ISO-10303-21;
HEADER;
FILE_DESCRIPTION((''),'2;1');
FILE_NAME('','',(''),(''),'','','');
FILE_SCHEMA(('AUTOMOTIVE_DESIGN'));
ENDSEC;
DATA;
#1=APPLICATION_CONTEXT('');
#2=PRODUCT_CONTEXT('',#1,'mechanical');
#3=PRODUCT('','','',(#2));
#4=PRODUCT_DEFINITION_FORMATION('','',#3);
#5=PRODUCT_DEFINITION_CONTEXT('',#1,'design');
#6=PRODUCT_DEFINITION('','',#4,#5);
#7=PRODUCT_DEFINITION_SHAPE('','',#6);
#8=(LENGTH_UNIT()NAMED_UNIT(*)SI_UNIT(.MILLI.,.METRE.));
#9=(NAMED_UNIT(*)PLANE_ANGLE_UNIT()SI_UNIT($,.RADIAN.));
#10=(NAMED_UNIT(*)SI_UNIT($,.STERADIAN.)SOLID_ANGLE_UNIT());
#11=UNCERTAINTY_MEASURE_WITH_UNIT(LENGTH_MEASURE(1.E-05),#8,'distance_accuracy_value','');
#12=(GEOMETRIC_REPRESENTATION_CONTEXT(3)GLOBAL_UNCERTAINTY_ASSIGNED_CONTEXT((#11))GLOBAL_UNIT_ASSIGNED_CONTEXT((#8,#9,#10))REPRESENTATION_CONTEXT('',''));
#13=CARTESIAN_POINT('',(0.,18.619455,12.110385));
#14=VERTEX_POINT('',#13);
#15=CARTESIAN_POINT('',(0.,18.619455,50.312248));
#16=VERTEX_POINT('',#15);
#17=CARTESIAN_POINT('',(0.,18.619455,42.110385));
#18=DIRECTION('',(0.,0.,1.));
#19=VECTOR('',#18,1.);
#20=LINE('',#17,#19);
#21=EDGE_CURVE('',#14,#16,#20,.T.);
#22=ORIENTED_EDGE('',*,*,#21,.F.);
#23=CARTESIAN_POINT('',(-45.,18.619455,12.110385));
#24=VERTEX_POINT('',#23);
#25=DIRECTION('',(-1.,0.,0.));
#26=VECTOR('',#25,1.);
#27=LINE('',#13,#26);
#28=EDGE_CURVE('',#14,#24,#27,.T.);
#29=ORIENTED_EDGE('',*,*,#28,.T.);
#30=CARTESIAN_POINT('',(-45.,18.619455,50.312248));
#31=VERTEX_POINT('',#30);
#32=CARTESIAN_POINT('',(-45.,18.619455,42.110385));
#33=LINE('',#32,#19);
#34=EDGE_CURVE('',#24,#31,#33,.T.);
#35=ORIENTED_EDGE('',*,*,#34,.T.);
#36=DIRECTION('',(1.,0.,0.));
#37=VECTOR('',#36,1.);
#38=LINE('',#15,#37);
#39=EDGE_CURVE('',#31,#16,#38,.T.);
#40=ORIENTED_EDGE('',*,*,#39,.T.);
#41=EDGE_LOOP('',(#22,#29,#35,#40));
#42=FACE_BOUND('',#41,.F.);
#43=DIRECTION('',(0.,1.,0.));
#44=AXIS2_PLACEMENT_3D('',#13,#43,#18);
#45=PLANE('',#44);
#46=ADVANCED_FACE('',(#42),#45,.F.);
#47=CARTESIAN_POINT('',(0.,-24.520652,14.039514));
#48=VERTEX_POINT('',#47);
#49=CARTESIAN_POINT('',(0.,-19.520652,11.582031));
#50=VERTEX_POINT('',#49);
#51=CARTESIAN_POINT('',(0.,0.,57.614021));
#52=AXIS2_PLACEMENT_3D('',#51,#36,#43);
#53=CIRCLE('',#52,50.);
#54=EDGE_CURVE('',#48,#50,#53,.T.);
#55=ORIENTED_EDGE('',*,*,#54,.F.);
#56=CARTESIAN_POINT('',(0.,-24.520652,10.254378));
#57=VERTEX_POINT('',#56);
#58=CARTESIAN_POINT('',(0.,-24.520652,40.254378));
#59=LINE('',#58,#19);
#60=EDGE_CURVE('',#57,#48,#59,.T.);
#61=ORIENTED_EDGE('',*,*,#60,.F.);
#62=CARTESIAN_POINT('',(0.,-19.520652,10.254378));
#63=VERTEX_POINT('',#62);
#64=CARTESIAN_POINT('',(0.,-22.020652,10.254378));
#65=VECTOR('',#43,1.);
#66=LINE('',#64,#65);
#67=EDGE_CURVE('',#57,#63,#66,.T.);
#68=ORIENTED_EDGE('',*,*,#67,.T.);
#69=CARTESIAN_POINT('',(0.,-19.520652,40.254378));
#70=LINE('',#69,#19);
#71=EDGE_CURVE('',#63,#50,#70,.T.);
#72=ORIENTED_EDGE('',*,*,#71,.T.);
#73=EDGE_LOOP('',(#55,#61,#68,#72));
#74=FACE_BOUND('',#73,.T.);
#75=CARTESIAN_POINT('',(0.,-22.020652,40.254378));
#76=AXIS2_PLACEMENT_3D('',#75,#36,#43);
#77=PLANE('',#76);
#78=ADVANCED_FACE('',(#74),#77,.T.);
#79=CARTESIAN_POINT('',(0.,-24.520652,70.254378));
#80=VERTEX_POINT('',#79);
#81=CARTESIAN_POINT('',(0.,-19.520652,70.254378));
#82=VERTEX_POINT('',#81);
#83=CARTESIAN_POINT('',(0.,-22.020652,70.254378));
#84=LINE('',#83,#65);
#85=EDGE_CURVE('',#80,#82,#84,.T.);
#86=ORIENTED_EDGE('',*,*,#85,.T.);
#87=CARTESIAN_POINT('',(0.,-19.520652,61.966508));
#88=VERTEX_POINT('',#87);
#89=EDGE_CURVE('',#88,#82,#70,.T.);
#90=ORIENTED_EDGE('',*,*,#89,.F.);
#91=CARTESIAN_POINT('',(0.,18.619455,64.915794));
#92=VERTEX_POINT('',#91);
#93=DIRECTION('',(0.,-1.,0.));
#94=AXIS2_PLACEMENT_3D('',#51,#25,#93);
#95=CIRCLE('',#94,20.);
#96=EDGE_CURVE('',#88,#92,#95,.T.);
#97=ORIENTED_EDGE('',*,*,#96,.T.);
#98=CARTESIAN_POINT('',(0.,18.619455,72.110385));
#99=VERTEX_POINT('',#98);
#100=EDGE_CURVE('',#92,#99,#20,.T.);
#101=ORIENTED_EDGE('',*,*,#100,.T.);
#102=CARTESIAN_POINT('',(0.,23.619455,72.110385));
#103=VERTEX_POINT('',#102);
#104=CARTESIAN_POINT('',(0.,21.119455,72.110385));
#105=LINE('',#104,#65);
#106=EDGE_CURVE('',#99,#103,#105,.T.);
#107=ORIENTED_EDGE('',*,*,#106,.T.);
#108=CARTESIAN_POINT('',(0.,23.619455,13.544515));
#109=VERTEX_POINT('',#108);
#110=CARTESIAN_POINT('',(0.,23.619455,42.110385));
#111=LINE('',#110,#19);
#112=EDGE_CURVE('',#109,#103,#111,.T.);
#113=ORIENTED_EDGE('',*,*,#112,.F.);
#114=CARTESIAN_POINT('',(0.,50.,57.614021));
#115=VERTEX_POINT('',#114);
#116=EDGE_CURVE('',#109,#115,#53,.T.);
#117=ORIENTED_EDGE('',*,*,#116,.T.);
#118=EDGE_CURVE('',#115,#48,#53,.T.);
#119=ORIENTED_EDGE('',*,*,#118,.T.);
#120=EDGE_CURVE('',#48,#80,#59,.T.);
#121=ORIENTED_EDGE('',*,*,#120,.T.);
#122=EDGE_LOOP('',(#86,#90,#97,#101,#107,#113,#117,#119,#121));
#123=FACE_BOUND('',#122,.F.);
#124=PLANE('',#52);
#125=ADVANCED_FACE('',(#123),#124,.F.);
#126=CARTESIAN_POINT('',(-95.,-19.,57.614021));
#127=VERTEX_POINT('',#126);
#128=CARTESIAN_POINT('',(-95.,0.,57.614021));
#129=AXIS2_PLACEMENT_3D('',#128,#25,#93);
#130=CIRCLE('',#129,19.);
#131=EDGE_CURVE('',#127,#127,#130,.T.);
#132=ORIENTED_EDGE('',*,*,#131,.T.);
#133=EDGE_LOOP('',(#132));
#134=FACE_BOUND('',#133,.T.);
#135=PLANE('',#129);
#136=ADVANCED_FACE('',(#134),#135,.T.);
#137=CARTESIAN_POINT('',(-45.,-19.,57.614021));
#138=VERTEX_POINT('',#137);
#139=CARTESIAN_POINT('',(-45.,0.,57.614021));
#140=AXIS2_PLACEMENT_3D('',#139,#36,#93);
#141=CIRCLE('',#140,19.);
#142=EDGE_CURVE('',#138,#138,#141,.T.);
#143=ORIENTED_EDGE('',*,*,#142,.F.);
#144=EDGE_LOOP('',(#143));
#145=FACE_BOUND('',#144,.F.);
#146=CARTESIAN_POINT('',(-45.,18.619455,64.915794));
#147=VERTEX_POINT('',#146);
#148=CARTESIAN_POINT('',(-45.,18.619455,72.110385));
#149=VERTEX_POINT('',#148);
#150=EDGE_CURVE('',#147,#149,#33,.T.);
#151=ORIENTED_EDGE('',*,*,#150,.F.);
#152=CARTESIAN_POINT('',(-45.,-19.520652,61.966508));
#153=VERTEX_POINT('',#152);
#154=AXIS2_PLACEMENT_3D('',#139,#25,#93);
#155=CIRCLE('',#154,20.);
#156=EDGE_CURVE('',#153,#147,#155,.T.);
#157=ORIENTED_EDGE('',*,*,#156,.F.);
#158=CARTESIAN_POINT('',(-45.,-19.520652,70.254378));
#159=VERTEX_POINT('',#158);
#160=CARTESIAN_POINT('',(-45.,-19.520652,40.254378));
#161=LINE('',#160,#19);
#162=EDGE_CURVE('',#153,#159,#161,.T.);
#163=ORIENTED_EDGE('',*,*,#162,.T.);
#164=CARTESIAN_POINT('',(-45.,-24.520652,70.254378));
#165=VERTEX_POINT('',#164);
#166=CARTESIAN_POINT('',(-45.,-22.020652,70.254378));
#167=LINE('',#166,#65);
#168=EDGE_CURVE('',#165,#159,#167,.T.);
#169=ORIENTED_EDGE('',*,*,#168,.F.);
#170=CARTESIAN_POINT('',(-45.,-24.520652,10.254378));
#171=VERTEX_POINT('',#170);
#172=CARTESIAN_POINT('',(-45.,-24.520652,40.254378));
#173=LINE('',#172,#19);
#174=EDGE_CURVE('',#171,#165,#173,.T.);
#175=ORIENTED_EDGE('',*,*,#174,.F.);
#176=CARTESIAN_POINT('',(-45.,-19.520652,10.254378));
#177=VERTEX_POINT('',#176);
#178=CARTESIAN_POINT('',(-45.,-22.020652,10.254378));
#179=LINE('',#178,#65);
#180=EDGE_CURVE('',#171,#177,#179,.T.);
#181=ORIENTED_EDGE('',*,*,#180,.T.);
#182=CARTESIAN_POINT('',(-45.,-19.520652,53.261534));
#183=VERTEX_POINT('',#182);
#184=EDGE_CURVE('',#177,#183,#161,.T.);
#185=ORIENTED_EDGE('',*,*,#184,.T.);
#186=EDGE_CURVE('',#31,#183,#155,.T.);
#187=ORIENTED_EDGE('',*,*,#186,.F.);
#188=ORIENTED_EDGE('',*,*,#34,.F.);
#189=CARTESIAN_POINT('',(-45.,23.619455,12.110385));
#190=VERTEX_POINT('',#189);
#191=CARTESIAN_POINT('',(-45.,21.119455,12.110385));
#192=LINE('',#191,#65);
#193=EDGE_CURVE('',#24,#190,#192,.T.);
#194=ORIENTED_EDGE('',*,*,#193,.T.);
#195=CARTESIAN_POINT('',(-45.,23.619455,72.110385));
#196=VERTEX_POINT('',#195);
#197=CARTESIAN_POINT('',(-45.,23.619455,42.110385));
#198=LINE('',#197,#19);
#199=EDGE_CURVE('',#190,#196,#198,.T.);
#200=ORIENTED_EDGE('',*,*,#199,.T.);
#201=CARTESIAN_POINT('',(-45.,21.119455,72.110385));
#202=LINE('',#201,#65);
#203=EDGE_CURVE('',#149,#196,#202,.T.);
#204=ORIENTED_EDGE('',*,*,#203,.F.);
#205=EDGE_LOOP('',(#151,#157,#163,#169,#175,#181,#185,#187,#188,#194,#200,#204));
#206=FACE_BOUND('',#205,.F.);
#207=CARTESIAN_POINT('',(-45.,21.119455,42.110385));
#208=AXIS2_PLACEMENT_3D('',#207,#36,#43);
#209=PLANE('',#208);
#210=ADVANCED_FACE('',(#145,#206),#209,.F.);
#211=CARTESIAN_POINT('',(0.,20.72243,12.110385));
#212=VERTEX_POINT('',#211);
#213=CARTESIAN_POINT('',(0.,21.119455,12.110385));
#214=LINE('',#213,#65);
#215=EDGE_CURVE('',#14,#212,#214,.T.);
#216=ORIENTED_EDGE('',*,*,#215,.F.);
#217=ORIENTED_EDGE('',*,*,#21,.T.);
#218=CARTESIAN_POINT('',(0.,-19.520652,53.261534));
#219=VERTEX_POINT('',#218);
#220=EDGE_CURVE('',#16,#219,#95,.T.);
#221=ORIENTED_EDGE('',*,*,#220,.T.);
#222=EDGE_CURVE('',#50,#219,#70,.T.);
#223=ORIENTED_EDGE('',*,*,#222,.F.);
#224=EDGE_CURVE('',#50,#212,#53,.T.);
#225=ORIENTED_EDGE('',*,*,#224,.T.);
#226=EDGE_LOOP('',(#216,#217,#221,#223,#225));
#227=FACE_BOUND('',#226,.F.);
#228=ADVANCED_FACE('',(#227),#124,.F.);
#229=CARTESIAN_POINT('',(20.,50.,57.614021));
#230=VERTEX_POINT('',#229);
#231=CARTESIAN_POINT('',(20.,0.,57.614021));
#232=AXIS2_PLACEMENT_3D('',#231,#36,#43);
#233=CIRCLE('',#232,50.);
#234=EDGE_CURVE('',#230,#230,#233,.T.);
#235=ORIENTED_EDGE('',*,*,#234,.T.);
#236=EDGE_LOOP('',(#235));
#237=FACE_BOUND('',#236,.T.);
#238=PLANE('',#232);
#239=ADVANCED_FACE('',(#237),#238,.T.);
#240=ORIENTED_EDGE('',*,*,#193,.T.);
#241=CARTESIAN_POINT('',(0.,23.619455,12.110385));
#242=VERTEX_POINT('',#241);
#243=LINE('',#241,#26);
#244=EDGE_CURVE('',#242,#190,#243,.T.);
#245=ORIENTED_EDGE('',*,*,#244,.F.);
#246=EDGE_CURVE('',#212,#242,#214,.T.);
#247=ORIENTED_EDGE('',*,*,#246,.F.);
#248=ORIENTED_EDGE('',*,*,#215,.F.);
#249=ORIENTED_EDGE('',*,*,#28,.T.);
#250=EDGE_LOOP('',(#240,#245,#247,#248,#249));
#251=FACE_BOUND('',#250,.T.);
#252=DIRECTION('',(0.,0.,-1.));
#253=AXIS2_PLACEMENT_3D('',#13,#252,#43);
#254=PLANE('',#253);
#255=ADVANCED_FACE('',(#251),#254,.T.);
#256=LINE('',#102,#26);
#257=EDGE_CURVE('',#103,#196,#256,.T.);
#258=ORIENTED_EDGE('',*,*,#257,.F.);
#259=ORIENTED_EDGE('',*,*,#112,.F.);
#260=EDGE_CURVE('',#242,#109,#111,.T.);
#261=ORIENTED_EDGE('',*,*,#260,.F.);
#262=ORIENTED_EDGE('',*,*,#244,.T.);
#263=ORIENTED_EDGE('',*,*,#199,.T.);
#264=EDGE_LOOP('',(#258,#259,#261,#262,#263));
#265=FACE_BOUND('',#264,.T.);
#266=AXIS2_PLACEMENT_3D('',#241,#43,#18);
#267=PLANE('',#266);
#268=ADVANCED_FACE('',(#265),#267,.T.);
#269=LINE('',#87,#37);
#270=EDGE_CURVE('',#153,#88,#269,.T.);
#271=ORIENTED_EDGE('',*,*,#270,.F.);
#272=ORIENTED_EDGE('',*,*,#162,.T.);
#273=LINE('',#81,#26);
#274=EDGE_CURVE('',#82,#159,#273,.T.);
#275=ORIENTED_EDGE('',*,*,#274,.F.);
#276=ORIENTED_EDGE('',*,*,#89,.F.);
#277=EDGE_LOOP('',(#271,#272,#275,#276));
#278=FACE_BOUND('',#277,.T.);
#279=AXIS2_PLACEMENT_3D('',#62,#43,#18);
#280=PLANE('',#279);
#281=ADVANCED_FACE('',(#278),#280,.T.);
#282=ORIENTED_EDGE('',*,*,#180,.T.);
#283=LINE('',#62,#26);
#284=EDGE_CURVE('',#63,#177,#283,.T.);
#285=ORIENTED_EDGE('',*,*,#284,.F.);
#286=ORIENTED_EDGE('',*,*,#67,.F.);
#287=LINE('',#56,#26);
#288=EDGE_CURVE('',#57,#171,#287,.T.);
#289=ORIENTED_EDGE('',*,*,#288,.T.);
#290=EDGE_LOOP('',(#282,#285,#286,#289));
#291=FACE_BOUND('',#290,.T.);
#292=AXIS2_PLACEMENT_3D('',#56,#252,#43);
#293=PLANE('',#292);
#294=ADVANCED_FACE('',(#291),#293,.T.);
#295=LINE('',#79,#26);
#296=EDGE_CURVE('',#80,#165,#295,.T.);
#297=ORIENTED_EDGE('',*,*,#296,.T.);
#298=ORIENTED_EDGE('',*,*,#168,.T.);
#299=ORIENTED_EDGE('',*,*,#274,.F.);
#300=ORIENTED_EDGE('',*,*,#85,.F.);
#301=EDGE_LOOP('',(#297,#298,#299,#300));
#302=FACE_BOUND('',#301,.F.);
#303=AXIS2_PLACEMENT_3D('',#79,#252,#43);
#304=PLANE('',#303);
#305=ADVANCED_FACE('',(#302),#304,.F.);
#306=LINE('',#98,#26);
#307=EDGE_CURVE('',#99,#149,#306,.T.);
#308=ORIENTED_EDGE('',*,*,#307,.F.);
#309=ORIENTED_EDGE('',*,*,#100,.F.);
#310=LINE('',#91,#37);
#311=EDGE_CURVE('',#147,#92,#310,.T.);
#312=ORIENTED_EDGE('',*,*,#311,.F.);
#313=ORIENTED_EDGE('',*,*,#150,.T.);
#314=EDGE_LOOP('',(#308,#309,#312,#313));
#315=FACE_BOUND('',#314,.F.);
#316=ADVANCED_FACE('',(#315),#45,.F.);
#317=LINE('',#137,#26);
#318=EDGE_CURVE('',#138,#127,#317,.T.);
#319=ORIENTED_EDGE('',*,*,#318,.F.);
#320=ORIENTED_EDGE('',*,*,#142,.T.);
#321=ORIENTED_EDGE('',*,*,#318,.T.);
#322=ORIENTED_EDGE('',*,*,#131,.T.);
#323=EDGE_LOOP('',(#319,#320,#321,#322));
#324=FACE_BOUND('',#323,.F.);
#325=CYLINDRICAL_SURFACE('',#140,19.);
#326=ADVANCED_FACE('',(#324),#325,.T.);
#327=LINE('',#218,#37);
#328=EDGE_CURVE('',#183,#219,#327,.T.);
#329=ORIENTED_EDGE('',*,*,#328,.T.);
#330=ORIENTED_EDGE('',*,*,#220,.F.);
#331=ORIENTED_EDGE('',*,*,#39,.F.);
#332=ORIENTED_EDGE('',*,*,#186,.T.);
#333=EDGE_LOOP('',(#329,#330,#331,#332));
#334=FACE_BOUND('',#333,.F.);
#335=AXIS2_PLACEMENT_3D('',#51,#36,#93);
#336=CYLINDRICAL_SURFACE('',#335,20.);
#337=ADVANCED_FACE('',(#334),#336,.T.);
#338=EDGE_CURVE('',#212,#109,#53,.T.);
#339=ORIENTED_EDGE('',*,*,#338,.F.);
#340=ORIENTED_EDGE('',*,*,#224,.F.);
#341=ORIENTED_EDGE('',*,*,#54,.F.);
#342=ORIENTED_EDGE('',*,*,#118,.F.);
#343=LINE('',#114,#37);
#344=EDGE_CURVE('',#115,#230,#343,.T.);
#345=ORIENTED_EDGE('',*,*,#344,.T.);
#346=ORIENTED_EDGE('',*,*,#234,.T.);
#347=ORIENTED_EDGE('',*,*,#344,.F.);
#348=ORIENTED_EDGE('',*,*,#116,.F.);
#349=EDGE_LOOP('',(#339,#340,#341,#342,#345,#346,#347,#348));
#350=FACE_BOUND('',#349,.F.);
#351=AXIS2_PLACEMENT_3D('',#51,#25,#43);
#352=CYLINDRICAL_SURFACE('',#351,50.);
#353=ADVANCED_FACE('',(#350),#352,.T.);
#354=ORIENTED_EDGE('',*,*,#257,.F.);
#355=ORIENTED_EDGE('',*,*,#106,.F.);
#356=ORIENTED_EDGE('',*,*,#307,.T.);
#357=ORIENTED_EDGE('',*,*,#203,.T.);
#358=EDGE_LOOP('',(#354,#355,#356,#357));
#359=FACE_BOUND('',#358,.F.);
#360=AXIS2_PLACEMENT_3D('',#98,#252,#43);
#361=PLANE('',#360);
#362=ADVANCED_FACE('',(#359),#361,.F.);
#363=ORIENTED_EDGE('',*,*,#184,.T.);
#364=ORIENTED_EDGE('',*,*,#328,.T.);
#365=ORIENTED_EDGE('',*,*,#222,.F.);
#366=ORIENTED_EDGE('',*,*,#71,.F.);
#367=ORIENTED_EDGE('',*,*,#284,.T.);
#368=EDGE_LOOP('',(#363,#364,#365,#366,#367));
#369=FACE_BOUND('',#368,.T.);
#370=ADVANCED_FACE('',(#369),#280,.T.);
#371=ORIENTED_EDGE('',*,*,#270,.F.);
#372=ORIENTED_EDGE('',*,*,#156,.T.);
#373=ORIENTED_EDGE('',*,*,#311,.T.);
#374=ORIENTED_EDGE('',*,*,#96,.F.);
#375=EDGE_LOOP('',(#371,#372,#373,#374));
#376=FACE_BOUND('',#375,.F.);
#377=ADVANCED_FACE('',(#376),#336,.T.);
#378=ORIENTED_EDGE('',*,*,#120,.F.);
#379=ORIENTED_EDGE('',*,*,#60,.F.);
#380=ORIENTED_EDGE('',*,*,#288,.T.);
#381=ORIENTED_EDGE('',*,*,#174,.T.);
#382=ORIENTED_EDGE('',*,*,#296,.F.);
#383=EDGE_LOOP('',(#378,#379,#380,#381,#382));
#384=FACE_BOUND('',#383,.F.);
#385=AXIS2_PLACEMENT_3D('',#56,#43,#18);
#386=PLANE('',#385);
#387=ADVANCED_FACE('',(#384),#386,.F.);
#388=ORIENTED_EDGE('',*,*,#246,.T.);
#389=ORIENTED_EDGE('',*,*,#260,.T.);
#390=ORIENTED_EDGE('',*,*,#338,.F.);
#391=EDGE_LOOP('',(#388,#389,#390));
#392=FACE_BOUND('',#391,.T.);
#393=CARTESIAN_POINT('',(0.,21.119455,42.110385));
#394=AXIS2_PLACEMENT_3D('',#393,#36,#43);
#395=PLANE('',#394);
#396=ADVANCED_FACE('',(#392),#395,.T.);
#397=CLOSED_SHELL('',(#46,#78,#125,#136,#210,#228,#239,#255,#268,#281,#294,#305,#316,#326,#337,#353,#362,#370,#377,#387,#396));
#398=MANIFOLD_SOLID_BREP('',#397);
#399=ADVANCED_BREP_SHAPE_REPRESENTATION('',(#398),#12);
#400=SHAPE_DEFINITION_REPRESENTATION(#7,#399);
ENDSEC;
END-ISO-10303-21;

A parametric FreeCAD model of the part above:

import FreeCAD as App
import Part
import Sketcher
from FreeCAD import Vector

doc = App.newDocument("Part")
body = doc.addObject("PartDesign::Body", "Body")

# Sketch on YZ plane
sketch1 = doc.addObject("Sketcher::SketchObject", "Sketch")
body.addObject(sketch1)
sketch1.AttachmentSupport = (doc.YZ_Plane, [""])
sketch1.MapMode = "FlatFace"
sketch1.addGeometry(Part.Circle(Vector(0, 57.614021, 0), Vector(0, 0, 1), 50), False)
sketch1.addConstraint(Sketcher.Constraint("PointOnObject", 0, 3, -2))
sketch1.addConstraint(Sketcher.Constraint("Diameter", 0, 100.0))
sketch1.addConstraint(Sketcher.Constraint("DistanceY", -1, 1, 0, 3, 57.614021))
pad1 = doc.addObject("PartDesign::Pad", "Pad")
body.addObject(pad1)
pad1.Profile = sketch1
pad1.Length = 20

# Sketch on YZ plane
sketch2 = doc.addObject("Sketcher::SketchObject", "Sketch001")
body.addObject(sketch2)
sketch2.AttachmentSupport = (doc.YZ_Plane, [""])
sketch2.MapMode = "FlatFace"
sketch2.addGeometry(Part.Circle(Vector(0, 57.614021, 0), Vector(0, 0, 1), 20), False)
sketch2.addConstraint(Sketcher.Constraint("PointOnObject", 0, 3, -2))
sketch2.addConstraint(Sketcher.Constraint("Diameter", 0, 40.0))
sketch2.addConstraint(Sketcher.Constraint("DistanceY", -1, 1, 0, 3, 57.614021))
pad2 = doc.addObject("PartDesign::Pad", "Pad001")
body.addObject(pad2)
pad2.Profile = sketch2
pad2.Length = 45
pad2.Reversed = True

# Sketch on YZ plane
sketch3 = doc.addObject("Sketcher::SketchObject", "Sketch002")
body.addObject(sketch3)
sketch3.AttachmentSupport = (doc.YZ_Plane, [""])
sketch3.MapMode = "FlatFace"
sketch3.addGeometry(Part.LineSegment(Vector(-24.520652, 70.254378, 0), Vector(-24.520652, 10.254378, 0)), False)
sketch3.addGeometry(Part.LineSegment(Vector(-24.520652, 10.254378, 0), Vector(-19.520652, 10.254378, 0)), False)
sketch3.addGeometry(Part.LineSegment(Vector(-19.520652, 10.254378, 0), Vector(-19.520652, 70.254378, 0)), False)
sketch3.addGeometry(Part.LineSegment(Vector(-19.520652, 70.254378, 0), Vector(-24.520652, 70.254378, 0)), False)
sketch3.addConstraint(Sketcher.Constraint("Coincident", 0, 2, 1, 1))
sketch3.addConstraint(Sketcher.Constraint("Coincident", 1, 2, 2, 1))
sketch3.addConstraint(Sketcher.Constraint("Coincident", 2, 2, 3, 1))
sketch3.addConstraint(Sketcher.Constraint("Coincident", 3, 2, 0, 1))
sketch3.addConstraint(Sketcher.Constraint("Vertical", 0))
sketch3.addConstraint(Sketcher.Constraint("Horizontal", 1))
sketch3.addConstraint(Sketcher.Constraint("Vertical", 2))
sketch3.addConstraint(Sketcher.Constraint("Horizontal", 3))
sketch3.addConstraint(Sketcher.Constraint("DistanceX", 1, 1, 1, 2, 5.0))
sketch3.addConstraint(Sketcher.Constraint("DistanceY", 0, 2, 0, 1, 60.0))
sketch3.addConstraint(Sketcher.Constraint("DistanceX", 0, 2, -1, 1, 24.520652))
sketch3.addConstraint(Sketcher.Constraint("DistanceY", -1, 1, 0, 2, 10.254378))
pad3 = doc.addObject("PartDesign::Pad", "Pad002")
body.addObject(pad3)
pad3.Profile = sketch3
pad3.Length = 45
pad3.Reversed = True

# Sketch on YZ plane
sketch4 = doc.addObject("Sketcher::SketchObject", "Sketch003")
body.addObject(sketch4)
sketch4.AttachmentSupport = (doc.YZ_Plane, [""])
sketch4.MapMode = "FlatFace"
sketch4.AttachmentOffset = App.Placement(Vector(0, 0, -45), App.Rotation())
sketch4.addGeometry(Part.Circle(Vector(0, 57.614021, 0), Vector(0, 0, 1), 19), False)
sketch4.addConstraint(Sketcher.Constraint("PointOnObject", 0, 3, -2))
sketch4.addConstraint(Sketcher.Constraint("Diameter", 0, 38.0))
sketch4.addConstraint(Sketcher.Constraint("DistanceY", -1, 1, 0, 3, 57.614021))
pad4 = doc.addObject("PartDesign::Pad", "Pad003")
body.addObject(pad4)
pad4.Profile = sketch4
pad4.Length = 50
pad4.Reversed = True

# Sketch on YZ plane
sketch5 = doc.addObject("Sketcher::SketchObject", "Sketch004")
body.addObject(sketch5)
sketch5.AttachmentSupport = (doc.YZ_Plane, [""])
sketch5.MapMode = "FlatFace"
sketch5.addGeometry(Part.LineSegment(Vector(18.619455, 72.110385, 0), Vector(18.619455, 12.110385, 0)), False)
sketch5.addGeometry(Part.LineSegment(Vector(18.619455, 12.110385, 0), Vector(23.619455, 12.110385, 0)), False)
sketch5.addGeometry(Part.LineSegment(Vector(23.619455, 12.110385, 0), Vector(23.619455, 72.110385, 0)), False)
sketch5.addGeometry(Part.LineSegment(Vector(23.619455, 72.110385, 0), Vector(18.619455, 72.110385, 0)), False)
sketch5.addConstraint(Sketcher.Constraint("Coincident", 0, 2, 1, 1))
sketch5.addConstraint(Sketcher.Constraint("Coincident", 1, 2, 2, 1))
sketch5.addConstraint(Sketcher.Constraint("Coincident", 2, 2, 3, 1))
sketch5.addConstraint(Sketcher.Constraint("Coincident", 3, 2, 0, 1))
sketch5.addConstraint(Sketcher.Constraint("Vertical", 0))
sketch5.addConstraint(Sketcher.Constraint("Horizontal", 1))
sketch5.addConstraint(Sketcher.Constraint("Vertical", 2))
sketch5.addConstraint(Sketcher.Constraint("Horizontal", 3))
sketch5.addConstraint(Sketcher.Constraint("DistanceX", 1, 1, 1, 2, 5.0))
sketch5.addConstraint(Sketcher.Constraint("DistanceY", 0, 2, 0, 1, 60.0))
sketch5.addConstraint(Sketcher.Constraint("DistanceX", -1, 1, 0, 2, 18.619455))
sketch5.addConstraint(Sketcher.Constraint("DistanceY", -1, 1, 0, 2, 12.110385))
pad5 = doc.addObject("PartDesign::Pad", "Pad004")
body.addObject(pad5)
pad5.Profile = sketch5
pad5.Length = 45
pad5.Reversed = True

doc.recompute()
